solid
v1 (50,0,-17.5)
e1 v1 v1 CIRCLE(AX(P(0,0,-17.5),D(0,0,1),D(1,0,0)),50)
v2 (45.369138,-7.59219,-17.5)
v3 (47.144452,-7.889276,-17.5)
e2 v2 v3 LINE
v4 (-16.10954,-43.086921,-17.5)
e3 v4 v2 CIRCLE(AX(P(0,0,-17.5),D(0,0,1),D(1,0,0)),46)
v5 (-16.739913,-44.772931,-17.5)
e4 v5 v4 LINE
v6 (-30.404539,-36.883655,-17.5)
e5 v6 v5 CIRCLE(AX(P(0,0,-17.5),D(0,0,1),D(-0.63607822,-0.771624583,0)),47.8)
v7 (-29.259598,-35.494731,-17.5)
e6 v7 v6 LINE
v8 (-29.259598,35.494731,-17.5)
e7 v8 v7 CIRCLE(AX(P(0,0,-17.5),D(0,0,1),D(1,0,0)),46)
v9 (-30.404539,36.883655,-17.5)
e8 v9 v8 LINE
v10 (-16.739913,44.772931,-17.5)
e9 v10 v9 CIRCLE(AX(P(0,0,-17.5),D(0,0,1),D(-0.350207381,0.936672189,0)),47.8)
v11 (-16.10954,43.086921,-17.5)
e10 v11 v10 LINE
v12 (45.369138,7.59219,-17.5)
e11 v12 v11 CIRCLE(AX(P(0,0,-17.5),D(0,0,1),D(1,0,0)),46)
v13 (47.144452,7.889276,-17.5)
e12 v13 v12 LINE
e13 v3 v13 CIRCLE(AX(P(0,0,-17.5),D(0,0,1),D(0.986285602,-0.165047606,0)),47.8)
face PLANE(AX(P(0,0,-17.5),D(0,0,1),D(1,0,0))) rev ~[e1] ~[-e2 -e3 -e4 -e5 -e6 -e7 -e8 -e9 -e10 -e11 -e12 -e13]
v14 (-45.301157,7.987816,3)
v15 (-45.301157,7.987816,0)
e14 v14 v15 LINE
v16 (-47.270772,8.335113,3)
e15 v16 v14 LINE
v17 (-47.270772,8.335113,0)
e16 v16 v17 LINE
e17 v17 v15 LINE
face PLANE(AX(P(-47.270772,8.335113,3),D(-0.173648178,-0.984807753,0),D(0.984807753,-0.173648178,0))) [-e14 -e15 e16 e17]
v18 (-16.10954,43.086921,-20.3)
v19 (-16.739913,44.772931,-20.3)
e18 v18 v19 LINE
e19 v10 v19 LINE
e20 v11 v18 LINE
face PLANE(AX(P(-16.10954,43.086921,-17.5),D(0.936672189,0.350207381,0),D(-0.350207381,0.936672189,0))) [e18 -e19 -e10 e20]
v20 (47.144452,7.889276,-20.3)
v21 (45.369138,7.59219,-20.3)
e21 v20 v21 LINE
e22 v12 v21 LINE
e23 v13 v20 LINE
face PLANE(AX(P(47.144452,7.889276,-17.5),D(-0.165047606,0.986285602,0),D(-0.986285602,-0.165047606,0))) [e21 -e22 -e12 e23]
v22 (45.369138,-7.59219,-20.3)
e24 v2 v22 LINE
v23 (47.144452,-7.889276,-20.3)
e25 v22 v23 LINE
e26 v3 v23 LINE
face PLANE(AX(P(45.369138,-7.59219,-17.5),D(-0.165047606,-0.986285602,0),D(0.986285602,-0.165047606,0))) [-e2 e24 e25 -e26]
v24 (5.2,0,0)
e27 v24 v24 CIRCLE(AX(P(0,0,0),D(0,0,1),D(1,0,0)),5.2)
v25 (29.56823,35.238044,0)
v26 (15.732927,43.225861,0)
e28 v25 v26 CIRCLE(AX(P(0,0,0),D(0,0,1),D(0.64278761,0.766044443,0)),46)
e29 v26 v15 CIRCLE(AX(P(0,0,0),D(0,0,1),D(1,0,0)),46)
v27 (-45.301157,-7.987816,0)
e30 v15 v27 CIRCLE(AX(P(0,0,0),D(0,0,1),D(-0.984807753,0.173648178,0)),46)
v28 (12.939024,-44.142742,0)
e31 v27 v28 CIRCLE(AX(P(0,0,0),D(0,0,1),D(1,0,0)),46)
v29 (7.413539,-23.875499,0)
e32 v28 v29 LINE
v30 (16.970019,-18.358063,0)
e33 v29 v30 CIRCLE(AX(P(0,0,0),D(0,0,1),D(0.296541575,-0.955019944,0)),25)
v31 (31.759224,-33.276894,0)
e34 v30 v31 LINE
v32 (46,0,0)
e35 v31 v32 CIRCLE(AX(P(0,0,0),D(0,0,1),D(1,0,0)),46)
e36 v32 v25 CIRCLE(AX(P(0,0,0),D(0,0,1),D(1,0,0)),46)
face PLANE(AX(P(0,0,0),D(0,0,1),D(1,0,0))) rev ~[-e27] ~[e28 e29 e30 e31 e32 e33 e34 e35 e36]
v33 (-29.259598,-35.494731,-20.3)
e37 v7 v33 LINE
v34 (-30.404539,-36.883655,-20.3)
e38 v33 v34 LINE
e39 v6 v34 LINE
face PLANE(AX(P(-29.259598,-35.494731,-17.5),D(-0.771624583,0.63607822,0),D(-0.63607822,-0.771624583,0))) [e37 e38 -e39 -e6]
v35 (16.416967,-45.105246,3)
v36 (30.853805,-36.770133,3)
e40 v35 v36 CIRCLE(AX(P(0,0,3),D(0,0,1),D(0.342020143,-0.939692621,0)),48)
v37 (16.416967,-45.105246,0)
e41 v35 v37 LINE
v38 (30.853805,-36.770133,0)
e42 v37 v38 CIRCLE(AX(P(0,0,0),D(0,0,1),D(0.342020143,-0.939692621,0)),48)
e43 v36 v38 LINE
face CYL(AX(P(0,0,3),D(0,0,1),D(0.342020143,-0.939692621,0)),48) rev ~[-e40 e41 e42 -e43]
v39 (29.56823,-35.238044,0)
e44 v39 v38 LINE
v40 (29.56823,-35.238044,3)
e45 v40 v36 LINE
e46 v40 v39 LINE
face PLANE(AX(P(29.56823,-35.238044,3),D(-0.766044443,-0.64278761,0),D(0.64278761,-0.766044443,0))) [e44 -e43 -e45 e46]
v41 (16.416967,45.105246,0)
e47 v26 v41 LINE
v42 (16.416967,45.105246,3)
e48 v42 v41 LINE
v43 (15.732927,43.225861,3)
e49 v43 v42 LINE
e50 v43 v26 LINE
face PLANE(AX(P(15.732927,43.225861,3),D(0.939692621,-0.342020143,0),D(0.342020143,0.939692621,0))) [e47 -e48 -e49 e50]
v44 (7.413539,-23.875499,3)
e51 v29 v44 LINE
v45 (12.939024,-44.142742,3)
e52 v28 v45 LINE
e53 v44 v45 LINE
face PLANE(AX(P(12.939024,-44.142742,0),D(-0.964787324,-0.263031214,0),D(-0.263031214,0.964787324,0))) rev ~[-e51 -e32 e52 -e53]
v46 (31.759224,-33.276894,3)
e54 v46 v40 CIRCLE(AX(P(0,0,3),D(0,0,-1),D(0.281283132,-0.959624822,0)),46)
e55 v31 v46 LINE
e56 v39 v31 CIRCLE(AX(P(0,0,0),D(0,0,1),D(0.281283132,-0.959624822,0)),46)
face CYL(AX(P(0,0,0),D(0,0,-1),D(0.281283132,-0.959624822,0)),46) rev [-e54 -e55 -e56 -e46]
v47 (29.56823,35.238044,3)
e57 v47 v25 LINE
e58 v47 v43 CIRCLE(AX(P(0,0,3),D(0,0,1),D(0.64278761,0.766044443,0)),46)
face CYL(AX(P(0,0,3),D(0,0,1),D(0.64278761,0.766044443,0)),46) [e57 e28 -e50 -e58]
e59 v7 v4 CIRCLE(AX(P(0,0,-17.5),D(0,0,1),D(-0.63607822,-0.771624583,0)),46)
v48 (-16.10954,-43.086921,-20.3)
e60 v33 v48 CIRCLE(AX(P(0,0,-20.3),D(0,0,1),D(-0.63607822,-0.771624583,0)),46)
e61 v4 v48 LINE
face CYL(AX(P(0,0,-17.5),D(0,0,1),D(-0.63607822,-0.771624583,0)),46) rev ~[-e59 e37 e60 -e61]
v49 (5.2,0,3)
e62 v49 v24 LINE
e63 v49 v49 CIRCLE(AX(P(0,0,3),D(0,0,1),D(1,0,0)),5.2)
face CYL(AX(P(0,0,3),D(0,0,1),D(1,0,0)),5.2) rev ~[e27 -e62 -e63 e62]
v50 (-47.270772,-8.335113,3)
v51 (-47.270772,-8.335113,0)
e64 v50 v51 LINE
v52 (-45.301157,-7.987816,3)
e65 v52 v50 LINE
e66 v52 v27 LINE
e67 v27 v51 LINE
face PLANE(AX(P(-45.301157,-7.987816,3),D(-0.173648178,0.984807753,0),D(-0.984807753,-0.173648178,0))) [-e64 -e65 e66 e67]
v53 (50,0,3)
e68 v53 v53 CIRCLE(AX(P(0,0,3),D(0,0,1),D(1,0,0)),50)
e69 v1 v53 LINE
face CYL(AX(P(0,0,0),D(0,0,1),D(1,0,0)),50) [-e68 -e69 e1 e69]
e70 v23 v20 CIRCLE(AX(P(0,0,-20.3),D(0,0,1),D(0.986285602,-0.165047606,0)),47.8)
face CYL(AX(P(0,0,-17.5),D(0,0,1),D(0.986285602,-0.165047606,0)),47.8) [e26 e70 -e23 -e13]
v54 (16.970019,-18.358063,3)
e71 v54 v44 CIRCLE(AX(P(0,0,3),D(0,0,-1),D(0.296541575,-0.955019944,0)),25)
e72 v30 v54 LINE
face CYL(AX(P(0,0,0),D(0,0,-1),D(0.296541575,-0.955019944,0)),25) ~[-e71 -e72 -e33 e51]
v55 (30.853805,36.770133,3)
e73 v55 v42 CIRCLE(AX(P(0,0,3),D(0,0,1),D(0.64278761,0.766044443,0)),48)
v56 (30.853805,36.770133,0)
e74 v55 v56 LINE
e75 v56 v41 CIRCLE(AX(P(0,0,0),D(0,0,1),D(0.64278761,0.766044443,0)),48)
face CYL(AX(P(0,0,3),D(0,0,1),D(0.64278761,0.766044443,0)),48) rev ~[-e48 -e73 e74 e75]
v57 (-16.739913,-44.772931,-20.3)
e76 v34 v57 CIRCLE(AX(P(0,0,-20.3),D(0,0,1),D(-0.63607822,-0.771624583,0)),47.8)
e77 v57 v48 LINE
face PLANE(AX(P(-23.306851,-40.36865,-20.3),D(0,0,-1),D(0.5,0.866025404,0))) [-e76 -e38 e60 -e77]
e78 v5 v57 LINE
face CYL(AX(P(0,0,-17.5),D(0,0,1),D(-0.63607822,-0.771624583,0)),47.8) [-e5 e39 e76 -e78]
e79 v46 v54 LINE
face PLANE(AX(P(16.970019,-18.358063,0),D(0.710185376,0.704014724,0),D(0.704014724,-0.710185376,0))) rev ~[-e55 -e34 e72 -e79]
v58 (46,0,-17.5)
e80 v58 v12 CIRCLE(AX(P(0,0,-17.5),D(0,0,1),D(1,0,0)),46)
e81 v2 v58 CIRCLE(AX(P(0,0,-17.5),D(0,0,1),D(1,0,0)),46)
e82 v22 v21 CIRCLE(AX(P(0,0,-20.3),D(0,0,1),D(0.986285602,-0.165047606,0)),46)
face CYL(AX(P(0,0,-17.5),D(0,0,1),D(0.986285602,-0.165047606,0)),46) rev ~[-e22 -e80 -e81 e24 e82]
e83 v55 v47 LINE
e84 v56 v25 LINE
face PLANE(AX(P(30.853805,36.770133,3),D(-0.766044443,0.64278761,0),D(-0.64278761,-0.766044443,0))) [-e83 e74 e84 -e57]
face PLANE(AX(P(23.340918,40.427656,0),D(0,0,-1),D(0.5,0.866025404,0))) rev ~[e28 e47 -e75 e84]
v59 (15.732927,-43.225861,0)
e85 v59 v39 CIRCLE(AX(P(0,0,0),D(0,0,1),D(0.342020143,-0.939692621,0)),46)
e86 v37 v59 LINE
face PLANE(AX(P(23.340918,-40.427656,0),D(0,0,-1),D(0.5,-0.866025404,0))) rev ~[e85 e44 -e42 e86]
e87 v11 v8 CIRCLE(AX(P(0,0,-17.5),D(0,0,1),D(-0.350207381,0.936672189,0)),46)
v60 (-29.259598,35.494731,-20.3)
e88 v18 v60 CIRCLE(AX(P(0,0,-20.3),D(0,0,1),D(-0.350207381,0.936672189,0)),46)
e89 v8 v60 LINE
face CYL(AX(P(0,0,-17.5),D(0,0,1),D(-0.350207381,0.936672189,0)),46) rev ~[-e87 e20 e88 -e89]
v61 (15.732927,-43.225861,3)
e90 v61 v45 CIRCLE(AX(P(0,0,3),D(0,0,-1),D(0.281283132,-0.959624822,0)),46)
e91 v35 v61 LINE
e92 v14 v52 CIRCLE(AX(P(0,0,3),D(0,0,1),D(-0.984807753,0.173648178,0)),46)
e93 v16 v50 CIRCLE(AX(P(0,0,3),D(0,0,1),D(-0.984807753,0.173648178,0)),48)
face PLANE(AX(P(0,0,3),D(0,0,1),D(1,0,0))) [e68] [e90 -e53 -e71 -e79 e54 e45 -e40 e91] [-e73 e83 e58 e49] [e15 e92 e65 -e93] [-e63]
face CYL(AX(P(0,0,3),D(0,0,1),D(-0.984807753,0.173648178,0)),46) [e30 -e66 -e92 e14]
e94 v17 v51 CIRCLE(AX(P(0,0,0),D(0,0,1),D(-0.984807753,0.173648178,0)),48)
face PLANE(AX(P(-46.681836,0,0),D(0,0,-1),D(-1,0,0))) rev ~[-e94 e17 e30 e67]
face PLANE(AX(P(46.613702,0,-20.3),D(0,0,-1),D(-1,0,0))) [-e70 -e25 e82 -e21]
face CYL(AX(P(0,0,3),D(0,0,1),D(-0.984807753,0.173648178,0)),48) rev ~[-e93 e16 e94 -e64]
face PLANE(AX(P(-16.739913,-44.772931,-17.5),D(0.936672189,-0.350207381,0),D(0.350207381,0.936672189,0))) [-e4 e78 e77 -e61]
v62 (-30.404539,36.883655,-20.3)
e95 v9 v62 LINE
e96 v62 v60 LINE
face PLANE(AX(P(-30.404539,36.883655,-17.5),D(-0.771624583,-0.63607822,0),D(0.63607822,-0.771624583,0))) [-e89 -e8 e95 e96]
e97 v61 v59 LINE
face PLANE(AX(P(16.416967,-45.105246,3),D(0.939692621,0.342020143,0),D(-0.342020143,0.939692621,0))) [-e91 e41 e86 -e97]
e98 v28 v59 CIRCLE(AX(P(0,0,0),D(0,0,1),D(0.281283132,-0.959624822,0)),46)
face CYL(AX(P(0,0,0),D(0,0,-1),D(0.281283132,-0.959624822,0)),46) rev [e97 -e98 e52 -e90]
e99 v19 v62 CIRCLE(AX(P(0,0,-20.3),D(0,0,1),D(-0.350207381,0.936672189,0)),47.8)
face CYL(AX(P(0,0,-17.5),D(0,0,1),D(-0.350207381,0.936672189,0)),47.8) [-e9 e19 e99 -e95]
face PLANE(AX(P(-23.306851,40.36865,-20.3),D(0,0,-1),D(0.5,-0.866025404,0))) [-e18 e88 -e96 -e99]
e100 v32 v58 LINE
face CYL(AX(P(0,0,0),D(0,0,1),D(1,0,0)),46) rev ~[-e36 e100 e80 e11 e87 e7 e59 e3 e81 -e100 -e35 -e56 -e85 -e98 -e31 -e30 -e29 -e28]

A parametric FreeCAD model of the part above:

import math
import FreeCAD as App
import Part
import Sketcher
Q = App.Units.Quantity

doc = App.newDocument("Part")
body = doc.addObject("PartDesign::Body", "Body")

# Sketch on XY plane
sketch1 = body.newObject("Sketcher::SketchObject", "Sketch")
sketch1.AttachmentSupport = (doc.getObject("XY_Plane"), [""])
sketch1.MapMode = "FlatFace"
sketch1.addGeometry(Part.Circle(App.Vector(0, 0, 0), App.Vector(0, 0, 1), 50), False)
sketch1.addConstraint([
    Sketcher.Constraint("Coincident", 0, 3, -1, 1),
    Sketcher.Constraint("Diameter", 0, 100.0),
])
pad1 = body.newObject("PartDesign::Pad", "Pad")
pad1.Profile = sketch1
pad1.Length = 3

# Sketch on XY plane
sketch2 = body.newObject("Sketcher::SketchObject", "Sketch001")
sketch2.AttachmentSupport = (doc.getObject("XY_Plane"), [""])
sketch2.MapMode = "FlatFace"
sketch2.AttachmentOffset = App.Placement(App.Vector(0, 0, 3), App.Rotation())
sketch2.addGeometry(Part.Circle(App.Vector(0, 0, 0), App.Vector(0, 0, 1), 5), False)
sketch2.addConstraint([
    Sketcher.Constraint("Coincident", 0, 3, -1, 1),
    Sketcher.Constraint("Diameter", 0, 10.4),
])
pocket1 = body.newObject("PartDesign::Pocket", "Pocket")
pocket1.Profile = sketch2
pocket1.Type = "ThroughAll"

# Sketch on XY plane
sketch3 = body.newObject("Sketcher::SketchObject", "Sketch002")
sketch3.AttachmentSupport = (doc.getObject("XY_Plane"), [""])
sketch3.MapMode = "FlatFace"
sketch3.addGeometry([
    Part.ArcOfCircle(Part.Circle(App.Vector(0, 0, 0), App.Vector(0, 0, 1), 46), math.radians(-74), math.radians(-46)),
    Part.LineSegment(App.Vector(32, -33, 0), App.Vector(17, -18, 0)),
    Part.ArcOfCircle(Part.Circle(App.Vector(0, 0, 0), App.Vector(0, 0, 1), 25), math.radians(-73), math.radians(-47)),
    Part.LineSegment(App.Vector(7, -24, 0), App.Vector(13, -44, 0)),
], False)
sketch3.addConstraint([
    Sketcher.Constraint("Coincident", 0, 2, 1, 1),
    Sketcher.Constraint("Coincident", 1, 2, 2, 2),
    Sketcher.Constraint("Coincident", 2, 1, 3, 1),
    Sketcher.Constraint("Coincident", 3, 2, 0, 1),
    Sketcher.Constraint("Coincident", 0, 3, -1, 1),
    Sketcher.Constraint("Coincident", 2, 3, -1, 1),
    Sketcher.Constraint("Equal", 1, 3),
    Sketcher.Constraint("Radius", 0, 46.0),
    Sketcher.Constraint("Radius", 2, 25.0),
    Sketcher.Constraint("Angle", 1, Q("134.75 deg")),
    Sketcher.Constraint("Angle", 3, Q("-74.75 deg")),
    Sketcher.Constraint("DistanceY", 2, 1, -1, 1, 23.875499),
])
pocket2 = body.newObject("PartDesign::Pocket", "Pocket001")
pocket2.Profile = sketch3
pocket2.Type = "ThroughAll"
pocket2.Reversed = True

# Sketch on XY plane
sketch4 = body.newObject("Sketcher::SketchObject", "Sketch003")
sketch4.AttachmentSupport = (doc.getObject("XY_Plane"), [""])
sketch4.MapMode = "FlatFace"
sketch4.addGeometry([
    Part.Circle(App.Vector(0, 0, 0), App.Vector(0, 0, 1), 50),
    Part.Circle(App.Vector(0, 0, 0), App.Vector(0, 0, 1), 46),
], False)
sketch4.addConstraint([
    Sketcher.Constraint("Coincident", 0, 3, -1, 1),
    Sketcher.Constraint("Coincident", 1, 3, -1, 1),
    Sketcher.Constraint("Diameter", 0, 100.0),
    Sketcher.Constraint("Diameter", 1, 92.0),
])
pad2 = body.newObject("PartDesign::Pad", "Pad001")
pad2.Profile = sketch4
pad2.Length = 17.5
pad2.Reversed = True

# Sketch on XY plane
sketch5 = body.newObject("Sketcher::SketchObject", "Sketch004")
sketch5.AttachmentSupport = (doc.getObject("XY_Plane"), [""])
sketch5.MapMode = "FlatFace"
sketch5.AttachmentOffset = App.Placement(App.Vector(0, 0, 3), App.Rotation())
sketch5.addGeometry([
    Part.ArcOfCircle(Part.Circle(App.Vector(0, 0, 0), App.Vector(0, 0, 1), 46), math.radians(170), math.radians(190)),
    Part.LineSegment(App.Vector(-45.3, 8, 0), App.Vector(-47.3, 8.3, 0)),
    Part.ArcOfCircle(Part.Circle(App.Vector(0, 0, 0), App.Vector(0, 0, 1), 48), math.radians(170), math.radians(190)),
    Part.LineSegment(App.Vector(-47.3, -8.3, 0), App.Vector(-45.3, -8, 0)),
], False)
sketch5.addConstraint([
    Sketcher.Constraint("Coincident", 0, 1, 1, 1),
    Sketcher.Constraint("Coincident", 1, 2, 2, 1),
    Sketcher.Constraint("Coincident", 2, 2, 3, 1),
    Sketcher.Constraint("Coincident", 3, 2, 0, 2),
    Sketcher.Constraint("Coincident", 0, 3, -1, 1),
    Sketcher.Constraint("Coincident", 2, 3, -1, 1),
    Sketcher.Constraint("Vertical", 1, 2, 2, 2),
    Sketcher.Constraint("Vertical", 0, 1, 3, 2),
    Sketcher.Constraint("Radius", 0, 46.0),
    Sketcher.Constraint("Radius", 2, 48.0),
    Sketcher.Constraint("Angle", 1, Q("170 deg")),
    Sketcher.Constraint("DistanceY", 2, 2, 0, 1, 16.322929),
])
pocket3 = body.newObject("PartDesign::Pocket", "Pocket002")
pocket3.Profile = sketch5
pocket3.Length = 3
doc.recompute()

polarpattern = body.newObject("PartDesign::PolarPattern", "PolarPattern")
polarpattern.Originals = [pocket3]
polarpattern.Axis = (doc.getObject("Z_Axis"), [""])
polarpattern.Angle = 360
polarpattern.Occurrences = 3
body.Tip = polarpattern

# Sketch on XY plane
sketch6 = body.newObject("Sketcher::SketchObject", "Sketch005")
sketch6.AttachmentSupport = (doc.getObject("XY_Plane"), [""])
sketch6.MapMode = "FlatFace"
sketch6.AttachmentOffset = App.Placement(App.Vector(0, 0, -17.5), App.Rotation())
sketch6.addGeometry([
    Part.ArcOfCircle(Part.Circle(App.Vector(0, 0, 0), App.Vector(0, 0, 1), 46), math.radians(-9.5), math.radians(9.5)),
    Part.LineSegment(App.Vector(45.4, -7.6, 0), App.Vector(47.1, -7.9, 0)),
    Part.ArcOfCircle(Part.Circle(App.Vector(0, 0, 0), App.Vector(0, 0, 1), 47.8), math.radians(-9.5), math.radians(9.5)),
    Part.LineSegment(App.Vector(47.1, 7.9, 0), App.Vector(45.4, 7.6, 0)),
], False)
sketch6.addConstraint([
    Sketcher.Constraint("Coincident", 0, 1, 1, 1),
    Sketcher.Constraint("Coincident", 1, 2, 2, 1),
    Sketcher.Constraint("Coincident", 2, 2, 3, 1),
    Sketcher.Constraint("Coincident", 3, 2, 0, 2),
    Sketcher.Constraint("Coincident", 0, 3, -1, 1),
    Sketcher.Constraint("Coincident", 2, 3, -1, 1),
    Sketcher.Constraint("Vertical", 1, 2, 2, 2),
    Sketcher.Constraint("Vertical", 0, 1, 3, 2),
    Sketcher.Constraint("Radius", 0, 46.0),
    Sketcher.Constraint("Radius", 2, 47.8),
    Sketcher.Constraint("Angle", 1, Q("-9.5 deg")),
    Sketcher.Constraint("DistanceY", 0, 1, -1, 1, 7.59219),
])
pad3 = body.newObject("PartDesign::Pad", "Pad002")
pad3.Profile = sketch6
pad3.Length = 2.8
pad3.Reversed = True
doc.recompute()

polarpattern2 = body.newObject("PartDesign::PolarPattern", "PolarPattern001")
polarpattern2.Originals = [pad3]
polarpattern2.Axis = (doc.getObject("Z_Axis"), [""])
polarpattern2.Angle = 360
polarpattern2.Occurrences = 3
body.Tip = polarpattern2

doc.recompute()
